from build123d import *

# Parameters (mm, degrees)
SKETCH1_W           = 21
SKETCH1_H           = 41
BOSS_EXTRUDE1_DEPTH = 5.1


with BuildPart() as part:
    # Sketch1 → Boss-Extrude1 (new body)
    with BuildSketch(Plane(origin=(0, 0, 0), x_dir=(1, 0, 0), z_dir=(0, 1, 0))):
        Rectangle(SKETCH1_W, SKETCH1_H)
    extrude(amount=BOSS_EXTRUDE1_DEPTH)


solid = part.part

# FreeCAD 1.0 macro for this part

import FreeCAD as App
import Part
import Sketcher

doc = App.newDocument("Part")
body = doc.addObject("PartDesign::Body", "Body")

# Sketch on XZ plane
sketch1 = body.newObject("Sketcher::SketchObject", "Sketch")
sketch1.AttachmentSupport = (doc.getObject("XZ_Plane"), [""])
sketch1.MapMode = "FlatFace"
sketch1.addGeometry([
    Part.LineSegment(App.Vector(-10.5, -20.5, 0), App.Vector(-10.5, 20.5, 0)),
    Part.LineSegment(App.Vector(-10.5, 20.5, 0), App.Vector(10.5, 20.5, 0)),
    Part.LineSegment(App.Vector(10.5, 20.5, 0), App.Vector(10.5, -20.5, 0)),
    Part.LineSegment(App.Vector(10.5, -20.5, 0), App.Vector(-10.5, -20.5, 0)),
], False)
sketch1.addConstraint([
    Sketcher.Constraint("Coincident", 0, 2, 1, 1),
    Sketcher.Constraint("Coincident", 1, 2, 2, 1),
    Sketcher.Constraint("Coincident", 2, 2, 3, 1),
    Sketcher.Constraint("Coincident", 3, 2, 0, 1),
    Sketcher.Constraint("Vertical", 0),
    Sketcher.Constraint("Horizontal", 1),
    Sketcher.Constraint("Vertical", 2),
    Sketcher.Constraint("Horizontal", 3),
    Sketcher.Constraint("Symmetric", 0, 2, 2, 2, -1, 1),
    Sketcher.Constraint("DistanceX", 1, 1, 1, 2, 21.0),
    Sketcher.Constraint("DistanceY", 0, 1, 0, 2, 41.0),
])
pad1 = body.newObject("PartDesign::Pad", "Pad")
pad1.Profile = sketch1
pad1.Length = 5.1
pad1.Reversed = True

doc.recompute()
